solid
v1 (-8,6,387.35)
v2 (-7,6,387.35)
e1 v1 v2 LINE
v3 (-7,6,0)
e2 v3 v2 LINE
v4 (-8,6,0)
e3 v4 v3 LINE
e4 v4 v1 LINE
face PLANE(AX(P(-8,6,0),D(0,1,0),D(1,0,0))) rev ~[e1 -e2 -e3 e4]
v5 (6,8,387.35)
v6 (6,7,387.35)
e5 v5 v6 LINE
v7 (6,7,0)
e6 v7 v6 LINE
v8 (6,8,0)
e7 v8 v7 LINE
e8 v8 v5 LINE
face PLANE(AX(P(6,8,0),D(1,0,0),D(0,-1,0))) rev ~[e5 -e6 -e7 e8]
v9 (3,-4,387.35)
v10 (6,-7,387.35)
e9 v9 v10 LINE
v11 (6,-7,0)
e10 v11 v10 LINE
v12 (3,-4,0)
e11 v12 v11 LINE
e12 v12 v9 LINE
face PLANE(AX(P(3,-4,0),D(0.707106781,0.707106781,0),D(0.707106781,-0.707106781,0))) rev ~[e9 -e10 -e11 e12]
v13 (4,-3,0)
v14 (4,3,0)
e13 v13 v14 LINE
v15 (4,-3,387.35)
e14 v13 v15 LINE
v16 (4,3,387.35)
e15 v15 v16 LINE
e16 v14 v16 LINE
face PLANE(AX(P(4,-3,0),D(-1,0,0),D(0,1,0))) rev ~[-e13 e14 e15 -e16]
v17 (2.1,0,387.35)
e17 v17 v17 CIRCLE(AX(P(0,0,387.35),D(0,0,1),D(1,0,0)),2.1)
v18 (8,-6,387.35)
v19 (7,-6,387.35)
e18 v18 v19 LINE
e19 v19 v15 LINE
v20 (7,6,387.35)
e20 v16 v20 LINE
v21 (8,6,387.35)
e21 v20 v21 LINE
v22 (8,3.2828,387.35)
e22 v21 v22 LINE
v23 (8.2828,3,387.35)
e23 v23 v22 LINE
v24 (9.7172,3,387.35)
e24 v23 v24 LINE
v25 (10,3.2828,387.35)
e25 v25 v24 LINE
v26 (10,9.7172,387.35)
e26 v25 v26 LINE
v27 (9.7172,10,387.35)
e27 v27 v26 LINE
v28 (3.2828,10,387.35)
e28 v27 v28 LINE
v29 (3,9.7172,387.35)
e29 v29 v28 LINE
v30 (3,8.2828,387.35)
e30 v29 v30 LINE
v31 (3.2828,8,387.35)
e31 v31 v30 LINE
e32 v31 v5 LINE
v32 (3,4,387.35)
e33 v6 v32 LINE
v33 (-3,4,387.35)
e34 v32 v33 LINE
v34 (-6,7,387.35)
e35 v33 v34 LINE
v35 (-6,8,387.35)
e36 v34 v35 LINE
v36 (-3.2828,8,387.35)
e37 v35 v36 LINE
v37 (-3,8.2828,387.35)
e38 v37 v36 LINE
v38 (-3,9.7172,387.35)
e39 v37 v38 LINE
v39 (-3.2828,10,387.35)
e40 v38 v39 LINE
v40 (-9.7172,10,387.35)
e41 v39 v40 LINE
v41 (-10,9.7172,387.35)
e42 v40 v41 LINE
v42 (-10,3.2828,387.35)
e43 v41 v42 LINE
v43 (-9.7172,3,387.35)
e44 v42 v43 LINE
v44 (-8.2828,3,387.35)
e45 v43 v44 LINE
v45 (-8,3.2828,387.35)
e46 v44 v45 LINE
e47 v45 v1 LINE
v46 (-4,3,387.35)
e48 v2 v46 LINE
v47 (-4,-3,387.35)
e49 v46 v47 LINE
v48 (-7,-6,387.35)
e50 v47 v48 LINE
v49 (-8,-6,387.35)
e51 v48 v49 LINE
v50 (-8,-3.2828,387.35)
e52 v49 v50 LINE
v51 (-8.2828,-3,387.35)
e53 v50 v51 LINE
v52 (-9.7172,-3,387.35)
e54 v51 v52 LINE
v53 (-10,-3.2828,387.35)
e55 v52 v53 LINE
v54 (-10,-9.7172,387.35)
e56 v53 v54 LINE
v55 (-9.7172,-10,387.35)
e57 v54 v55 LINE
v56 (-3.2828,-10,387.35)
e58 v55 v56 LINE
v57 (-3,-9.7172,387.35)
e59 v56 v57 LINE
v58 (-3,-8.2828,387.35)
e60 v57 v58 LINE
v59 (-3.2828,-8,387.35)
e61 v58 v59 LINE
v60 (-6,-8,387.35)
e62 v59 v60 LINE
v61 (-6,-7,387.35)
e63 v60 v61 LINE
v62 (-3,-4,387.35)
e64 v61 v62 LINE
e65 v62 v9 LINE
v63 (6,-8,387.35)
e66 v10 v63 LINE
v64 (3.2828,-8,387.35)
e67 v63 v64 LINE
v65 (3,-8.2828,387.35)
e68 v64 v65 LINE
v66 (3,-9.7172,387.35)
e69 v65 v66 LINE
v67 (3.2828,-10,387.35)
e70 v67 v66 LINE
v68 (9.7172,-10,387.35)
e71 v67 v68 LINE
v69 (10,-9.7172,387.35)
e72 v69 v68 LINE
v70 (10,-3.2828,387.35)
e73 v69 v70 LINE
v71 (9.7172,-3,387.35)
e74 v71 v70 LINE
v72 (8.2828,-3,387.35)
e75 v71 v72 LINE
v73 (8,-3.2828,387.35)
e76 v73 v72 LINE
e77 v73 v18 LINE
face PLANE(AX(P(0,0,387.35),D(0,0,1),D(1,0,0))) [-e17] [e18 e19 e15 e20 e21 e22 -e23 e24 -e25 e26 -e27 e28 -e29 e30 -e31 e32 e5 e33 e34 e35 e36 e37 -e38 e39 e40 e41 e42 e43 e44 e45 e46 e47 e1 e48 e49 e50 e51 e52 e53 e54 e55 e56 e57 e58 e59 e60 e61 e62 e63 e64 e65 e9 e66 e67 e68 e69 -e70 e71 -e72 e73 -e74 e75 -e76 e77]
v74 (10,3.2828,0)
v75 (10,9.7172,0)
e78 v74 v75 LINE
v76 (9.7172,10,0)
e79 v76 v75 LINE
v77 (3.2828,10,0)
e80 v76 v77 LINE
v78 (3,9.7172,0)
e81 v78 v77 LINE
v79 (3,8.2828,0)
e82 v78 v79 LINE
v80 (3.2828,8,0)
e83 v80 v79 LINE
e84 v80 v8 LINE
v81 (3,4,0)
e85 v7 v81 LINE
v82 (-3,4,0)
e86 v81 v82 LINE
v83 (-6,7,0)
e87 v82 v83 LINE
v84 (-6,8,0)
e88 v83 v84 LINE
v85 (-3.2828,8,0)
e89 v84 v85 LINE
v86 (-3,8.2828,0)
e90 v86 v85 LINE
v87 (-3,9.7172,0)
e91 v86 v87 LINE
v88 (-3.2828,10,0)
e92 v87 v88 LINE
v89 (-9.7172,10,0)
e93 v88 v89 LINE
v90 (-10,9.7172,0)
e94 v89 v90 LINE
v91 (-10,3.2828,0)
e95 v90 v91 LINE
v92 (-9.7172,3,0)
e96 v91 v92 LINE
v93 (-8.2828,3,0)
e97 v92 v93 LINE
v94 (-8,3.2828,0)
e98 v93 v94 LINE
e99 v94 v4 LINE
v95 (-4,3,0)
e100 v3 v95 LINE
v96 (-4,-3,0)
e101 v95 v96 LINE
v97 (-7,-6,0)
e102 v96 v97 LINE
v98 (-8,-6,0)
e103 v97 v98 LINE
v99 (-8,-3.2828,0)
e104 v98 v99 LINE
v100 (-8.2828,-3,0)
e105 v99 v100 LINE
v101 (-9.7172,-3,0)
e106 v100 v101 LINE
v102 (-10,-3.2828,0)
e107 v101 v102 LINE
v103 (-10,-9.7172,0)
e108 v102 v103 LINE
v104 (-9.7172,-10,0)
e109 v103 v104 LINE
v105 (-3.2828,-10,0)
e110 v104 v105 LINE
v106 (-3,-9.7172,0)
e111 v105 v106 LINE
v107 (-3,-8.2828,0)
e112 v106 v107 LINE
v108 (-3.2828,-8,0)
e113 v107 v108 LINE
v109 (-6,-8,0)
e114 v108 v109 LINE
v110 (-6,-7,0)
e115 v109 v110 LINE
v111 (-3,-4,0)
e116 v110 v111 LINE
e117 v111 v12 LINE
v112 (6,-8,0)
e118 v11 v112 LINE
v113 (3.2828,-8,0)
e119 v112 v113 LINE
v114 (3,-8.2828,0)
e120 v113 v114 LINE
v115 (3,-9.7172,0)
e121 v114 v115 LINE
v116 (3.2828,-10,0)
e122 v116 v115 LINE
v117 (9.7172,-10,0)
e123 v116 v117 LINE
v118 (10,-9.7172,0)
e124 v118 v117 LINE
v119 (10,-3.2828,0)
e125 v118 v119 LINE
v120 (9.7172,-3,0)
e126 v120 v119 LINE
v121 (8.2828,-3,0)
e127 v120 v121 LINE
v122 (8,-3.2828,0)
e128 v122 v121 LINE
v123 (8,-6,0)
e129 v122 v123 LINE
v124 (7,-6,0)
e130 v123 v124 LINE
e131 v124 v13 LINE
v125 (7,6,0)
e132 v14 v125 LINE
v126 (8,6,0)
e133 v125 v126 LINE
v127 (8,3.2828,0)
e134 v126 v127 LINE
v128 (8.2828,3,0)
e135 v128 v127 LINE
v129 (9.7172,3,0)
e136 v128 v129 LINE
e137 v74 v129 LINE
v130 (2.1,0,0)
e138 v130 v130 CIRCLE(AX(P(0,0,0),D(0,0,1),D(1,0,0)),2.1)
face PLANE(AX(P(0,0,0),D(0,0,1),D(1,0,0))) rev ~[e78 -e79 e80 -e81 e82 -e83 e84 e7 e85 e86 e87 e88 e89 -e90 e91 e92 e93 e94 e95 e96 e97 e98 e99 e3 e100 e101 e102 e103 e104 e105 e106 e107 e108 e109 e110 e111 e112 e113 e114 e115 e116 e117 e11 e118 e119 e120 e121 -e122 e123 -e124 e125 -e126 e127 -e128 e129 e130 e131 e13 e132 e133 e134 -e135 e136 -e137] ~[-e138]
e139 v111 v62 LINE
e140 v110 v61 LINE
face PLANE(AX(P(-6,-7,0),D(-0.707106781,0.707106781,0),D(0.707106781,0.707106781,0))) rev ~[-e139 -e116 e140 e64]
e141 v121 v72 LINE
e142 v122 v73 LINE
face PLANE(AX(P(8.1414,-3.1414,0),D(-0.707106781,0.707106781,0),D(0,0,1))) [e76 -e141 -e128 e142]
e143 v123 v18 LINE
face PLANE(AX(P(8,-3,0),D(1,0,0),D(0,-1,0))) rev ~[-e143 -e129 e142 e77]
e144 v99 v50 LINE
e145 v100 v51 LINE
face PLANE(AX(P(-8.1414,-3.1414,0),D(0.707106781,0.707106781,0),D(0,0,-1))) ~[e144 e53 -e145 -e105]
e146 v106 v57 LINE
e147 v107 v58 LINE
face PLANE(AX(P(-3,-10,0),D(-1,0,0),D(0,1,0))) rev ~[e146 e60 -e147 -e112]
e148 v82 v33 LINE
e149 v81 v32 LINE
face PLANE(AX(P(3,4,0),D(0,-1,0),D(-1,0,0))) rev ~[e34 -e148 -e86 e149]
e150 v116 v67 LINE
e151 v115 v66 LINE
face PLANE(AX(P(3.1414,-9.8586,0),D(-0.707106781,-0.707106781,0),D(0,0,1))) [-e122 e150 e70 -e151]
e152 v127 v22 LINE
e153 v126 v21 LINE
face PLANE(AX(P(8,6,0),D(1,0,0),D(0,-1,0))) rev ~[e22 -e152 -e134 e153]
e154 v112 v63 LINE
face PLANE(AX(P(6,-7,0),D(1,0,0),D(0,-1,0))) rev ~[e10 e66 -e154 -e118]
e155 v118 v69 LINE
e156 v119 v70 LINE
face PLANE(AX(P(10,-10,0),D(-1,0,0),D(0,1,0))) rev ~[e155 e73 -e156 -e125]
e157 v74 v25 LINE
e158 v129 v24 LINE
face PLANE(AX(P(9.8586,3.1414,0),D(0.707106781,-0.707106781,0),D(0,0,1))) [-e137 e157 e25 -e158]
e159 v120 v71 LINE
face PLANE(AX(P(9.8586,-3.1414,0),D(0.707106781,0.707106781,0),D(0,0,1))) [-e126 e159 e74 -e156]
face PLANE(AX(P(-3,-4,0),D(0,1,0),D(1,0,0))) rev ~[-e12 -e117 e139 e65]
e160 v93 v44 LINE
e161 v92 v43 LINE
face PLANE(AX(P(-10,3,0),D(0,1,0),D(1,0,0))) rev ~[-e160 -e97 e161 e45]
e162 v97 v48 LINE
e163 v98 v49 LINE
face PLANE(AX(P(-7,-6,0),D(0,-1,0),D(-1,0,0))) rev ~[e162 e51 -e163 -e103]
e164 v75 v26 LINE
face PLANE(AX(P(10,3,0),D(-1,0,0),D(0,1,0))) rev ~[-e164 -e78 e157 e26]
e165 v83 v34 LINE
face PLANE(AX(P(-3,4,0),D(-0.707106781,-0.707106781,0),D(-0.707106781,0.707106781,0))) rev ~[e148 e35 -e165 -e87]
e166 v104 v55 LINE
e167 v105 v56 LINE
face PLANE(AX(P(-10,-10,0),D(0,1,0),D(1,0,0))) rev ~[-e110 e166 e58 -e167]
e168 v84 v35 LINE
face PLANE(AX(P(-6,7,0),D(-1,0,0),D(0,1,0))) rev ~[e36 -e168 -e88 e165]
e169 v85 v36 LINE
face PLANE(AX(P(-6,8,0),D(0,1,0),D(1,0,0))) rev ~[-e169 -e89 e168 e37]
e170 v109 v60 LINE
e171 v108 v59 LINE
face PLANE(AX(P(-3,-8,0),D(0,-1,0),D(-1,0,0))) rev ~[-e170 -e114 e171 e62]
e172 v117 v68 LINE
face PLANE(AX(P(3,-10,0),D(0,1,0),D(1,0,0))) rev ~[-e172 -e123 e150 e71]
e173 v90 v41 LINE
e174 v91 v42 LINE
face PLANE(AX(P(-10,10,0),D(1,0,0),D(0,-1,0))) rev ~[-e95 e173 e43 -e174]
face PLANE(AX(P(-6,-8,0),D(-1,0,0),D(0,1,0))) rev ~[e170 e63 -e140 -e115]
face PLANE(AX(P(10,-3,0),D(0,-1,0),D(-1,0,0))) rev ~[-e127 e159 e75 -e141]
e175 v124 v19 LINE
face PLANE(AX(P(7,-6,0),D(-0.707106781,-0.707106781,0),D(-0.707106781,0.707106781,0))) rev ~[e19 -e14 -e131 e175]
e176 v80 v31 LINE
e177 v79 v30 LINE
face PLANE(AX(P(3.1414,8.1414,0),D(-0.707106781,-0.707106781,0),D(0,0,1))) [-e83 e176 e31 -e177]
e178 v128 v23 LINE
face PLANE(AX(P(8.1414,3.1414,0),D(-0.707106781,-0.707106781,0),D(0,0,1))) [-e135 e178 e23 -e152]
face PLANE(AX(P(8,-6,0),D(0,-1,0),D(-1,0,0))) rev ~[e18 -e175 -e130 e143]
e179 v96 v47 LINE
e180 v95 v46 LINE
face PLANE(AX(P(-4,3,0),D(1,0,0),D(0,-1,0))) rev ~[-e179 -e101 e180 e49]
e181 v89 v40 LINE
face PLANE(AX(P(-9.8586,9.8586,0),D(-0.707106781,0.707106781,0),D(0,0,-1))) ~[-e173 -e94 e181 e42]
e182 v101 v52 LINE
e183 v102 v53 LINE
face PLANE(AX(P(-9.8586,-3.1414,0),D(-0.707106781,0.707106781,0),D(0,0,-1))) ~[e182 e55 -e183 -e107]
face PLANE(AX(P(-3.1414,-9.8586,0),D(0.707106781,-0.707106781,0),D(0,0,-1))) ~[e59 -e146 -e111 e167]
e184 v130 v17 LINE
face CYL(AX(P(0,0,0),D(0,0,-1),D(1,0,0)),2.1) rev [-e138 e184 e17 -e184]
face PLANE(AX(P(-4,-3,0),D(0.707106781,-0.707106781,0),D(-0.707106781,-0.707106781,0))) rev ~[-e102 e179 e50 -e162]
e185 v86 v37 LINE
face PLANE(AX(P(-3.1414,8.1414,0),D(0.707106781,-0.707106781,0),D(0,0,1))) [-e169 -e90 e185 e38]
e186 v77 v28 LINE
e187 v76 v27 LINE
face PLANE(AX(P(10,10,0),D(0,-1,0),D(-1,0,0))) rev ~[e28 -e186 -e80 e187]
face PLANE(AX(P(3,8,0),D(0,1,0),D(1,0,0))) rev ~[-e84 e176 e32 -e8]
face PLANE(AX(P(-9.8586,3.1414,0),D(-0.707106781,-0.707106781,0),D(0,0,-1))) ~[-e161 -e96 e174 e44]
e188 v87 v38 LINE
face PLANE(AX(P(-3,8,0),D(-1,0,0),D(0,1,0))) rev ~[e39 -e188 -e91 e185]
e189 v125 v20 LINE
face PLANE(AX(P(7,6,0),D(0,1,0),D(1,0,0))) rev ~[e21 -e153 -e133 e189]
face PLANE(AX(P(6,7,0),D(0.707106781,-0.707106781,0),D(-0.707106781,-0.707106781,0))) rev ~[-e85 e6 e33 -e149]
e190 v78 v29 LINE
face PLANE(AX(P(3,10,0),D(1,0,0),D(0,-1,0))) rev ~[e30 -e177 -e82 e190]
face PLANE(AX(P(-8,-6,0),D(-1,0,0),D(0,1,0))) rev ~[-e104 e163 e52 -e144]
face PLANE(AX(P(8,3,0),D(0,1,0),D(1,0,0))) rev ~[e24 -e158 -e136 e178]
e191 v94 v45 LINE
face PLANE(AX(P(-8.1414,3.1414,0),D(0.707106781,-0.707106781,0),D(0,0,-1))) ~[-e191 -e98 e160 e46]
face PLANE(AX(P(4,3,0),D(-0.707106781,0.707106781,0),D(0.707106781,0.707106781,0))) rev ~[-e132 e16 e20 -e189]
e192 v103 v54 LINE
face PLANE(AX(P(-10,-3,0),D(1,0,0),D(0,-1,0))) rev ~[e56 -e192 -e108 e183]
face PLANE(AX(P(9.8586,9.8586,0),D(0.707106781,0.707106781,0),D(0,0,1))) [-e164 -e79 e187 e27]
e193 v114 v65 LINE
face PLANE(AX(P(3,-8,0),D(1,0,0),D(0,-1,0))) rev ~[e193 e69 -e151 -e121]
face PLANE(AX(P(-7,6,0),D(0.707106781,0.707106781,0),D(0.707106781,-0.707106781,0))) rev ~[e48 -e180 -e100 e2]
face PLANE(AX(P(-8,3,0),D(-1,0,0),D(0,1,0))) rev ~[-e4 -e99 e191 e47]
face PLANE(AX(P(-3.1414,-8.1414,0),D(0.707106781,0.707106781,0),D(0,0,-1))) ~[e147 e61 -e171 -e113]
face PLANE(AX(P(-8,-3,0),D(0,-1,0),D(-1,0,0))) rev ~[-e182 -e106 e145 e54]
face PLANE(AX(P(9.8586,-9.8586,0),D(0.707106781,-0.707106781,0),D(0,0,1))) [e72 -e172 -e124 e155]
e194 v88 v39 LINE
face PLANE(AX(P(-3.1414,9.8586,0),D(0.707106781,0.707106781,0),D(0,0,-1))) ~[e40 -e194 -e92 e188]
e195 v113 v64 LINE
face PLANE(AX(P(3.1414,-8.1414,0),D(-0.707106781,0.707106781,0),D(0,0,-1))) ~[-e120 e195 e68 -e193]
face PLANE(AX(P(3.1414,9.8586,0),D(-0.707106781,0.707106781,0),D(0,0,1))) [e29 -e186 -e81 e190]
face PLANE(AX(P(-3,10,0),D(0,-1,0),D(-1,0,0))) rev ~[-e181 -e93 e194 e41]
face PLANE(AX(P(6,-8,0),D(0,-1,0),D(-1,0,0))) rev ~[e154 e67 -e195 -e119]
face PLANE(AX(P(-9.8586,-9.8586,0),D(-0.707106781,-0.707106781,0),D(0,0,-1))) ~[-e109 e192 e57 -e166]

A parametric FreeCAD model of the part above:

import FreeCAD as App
import Part
import Sketcher

V = App.Vector


def edges_at(feature, points):
    """Names of the edges that pass closest to the given points."""
    edges = feature.Shape.Edges
    near = lambda p: min(range(len(edges)), key=lambda i: edges[i].distToShape(Part.Vertex(*p))[0])
    return sorted({f"Edge{near(p) + 1}" for p in points})


def add_polygon(sketch, points):
    """Adds a closed chain of lines whose ends are joined by coincident constraints."""
    first, n = sketch.GeometryCount, len(points)
    for a, b in zip(points, points[1:] + points[:1]):
        sketch.addGeometry(Part.LineSegment(App.Vector(*a, 0), App.Vector(*b, 0)), False)
    for i in range(n):
        sketch.addConstraint(Sketcher.Constraint("Coincident", first + i, 2, first + (i + 1) % n, 1))

doc = App.newDocument("Part")
body = doc.addObject("PartDesign::Body", "Body")

sketch1 = body.newObject("Sketcher::SketchObject", "Sketch")
sketch1.AttachmentSupport = (doc.getObject("XY_Plane"), [""])
sketch1.MapMode = "FlatFace"
add_polygon(sketch1, [(-3, 8), (-3, 10), (-10, 10), (-10, 3), (-8, 3), (-8, 6), (-7, 6), (-4, 3), (-4, -3), (-7, -6), (-8, -6), (-8, -3), (-10, -3), (-10, -10), (-3, -10), (-3, -8), (-6, -8), (-6, -7), (-3, -4), (3, -4), (6, -7), (6, -8), (3, -8), (3, -10), (10, -10), (10, -3), (8, -3), (8, -6), (7, -6), (4, -3), (4, 3), (7, 6), (8, 6), (8, 3), (10, 3), (10, 10), (3, 10), (3, 8), (6, 8), (6, 7), (3, 4), (-3, 4), (-6, 7), (-6, 8)])
sketch1.addGeometry(Part.Circle(V(0, 0, 0), V(0, 0, 1), 2.1), False)
sketch1.addConstraint([
    Sketcher.Constraint("Vertical", 0),
    Sketcher.Constraint("Horizontal", 1),
    Sketcher.Constraint("Vertical", 2),
    Sketcher.Constraint("Horizontal", 3),
    Sketcher.Constraint("Vertical", 4),
    Sketcher.Constraint("Horizontal", 5),
    Sketcher.Constraint("Vertical", 7),
    Sketcher.Constraint("Horizontal", 9),
    Sketcher.Constraint("Vertical", 10),
    Sketcher.Constraint("Horizontal", 11),
    Sketcher.Constraint("Vertical", 12),
    Sketcher.Constraint("Horizontal", 13),
    Sketcher.Constraint("Vertical", 14),
    Sketcher.Constraint("Horizontal", 15),
    Sketcher.Constraint("Vertical", 16),
    Sketcher.Constraint("Horizontal", 18),
    Sketcher.Constraint("Vertical", 20),
    Sketcher.Constraint("Horizontal", 21),
    Sketcher.Constraint("Vertical", 22),
    Sketcher.Constraint("Horizontal", 23),
    Sketcher.Constraint("Vertical", 24),
    Sketcher.Constraint("Horizontal", 25),
    Sketcher.Constraint("Vertical", 26),
    Sketcher.Constraint("Horizontal", 27),
    Sketcher.Constraint("Vertical", 29),
    Sketcher.Constraint("Horizontal", 31),
    Sketcher.Constraint("Vertical", 32),
    Sketcher.Constraint("Horizontal", 33),
    Sketcher.Constraint("Vertical", 34),
    Sketcher.Constraint("Horizontal", 35),
    Sketcher.Constraint("Vertical", 36),
    Sketcher.Constraint("Horizontal", 37),
    Sketcher.Constraint("Vertical", 38),
    Sketcher.Constraint("Horizontal", 40),
    Sketcher.Constraint("Vertical", 42),
    Sketcher.Constraint("Horizontal", 43),
    Sketcher.Constraint("Coincident", 44, 3, -1, 1),
    Sketcher.Constraint("Symmetric", 0, 2, 22, 2, -1, 1),
    Sketcher.Constraint("Symmetric", 2, 2, 24, 2, -1, 1),
    Sketcher.Constraint("Symmetric", 4, 2, 26, 2, -1, 1),
    Sketcher.Constraint("Symmetric", 6, 2, 28, 2, -1, 1),
    Sketcher.Constraint("Symmetric", 8, 2, 30, 2, -1, 1),
    Sketcher.Constraint("Symmetric", 10, 2, 32, 2, -1, 1),
    Sketcher.Constraint("Symmetric", 12, 2, 34, 2, -1, 1),
    Sketcher.Constraint("Symmetric", 14, 2, 36, 2, -1, 1),
    Sketcher.Constraint("Symmetric", 16, 2, 38, 2, -1, 1),
    Sketcher.Constraint("Symmetric", 17, 2, 39, 2, -1, 1),
    Sketcher.Constraint("Symmetric", 19, 2, 41, 2, -1, 1),
    Sketcher.Constraint("Symmetric", 16, 2, 19, 2, -2),
    Sketcher.Constraint("Symmetric", 14, 2, 21, 2, -2),
    Sketcher.Constraint("Symmetric", 12, 2, 23, 2, -2),
    Sketcher.Constraint("Symmetric", 10, 2, 25, 2, -2),
    Sketcher.Constraint("Symmetric", 8, 2, 27, 2, -2),
    Sketcher.Constraint("Perpendicular", 6, 8),
    Sketcher.Constraint("Parallel", 8, 17),
    Sketcher.Constraint("Perpendicular", 17, 19),
    Sketcher.Constraint("Parallel", 19, 28),
    Sketcher.Constraint("Perpendicular", 28, 30),
    Sketcher.Constraint("Perpendicular", 39, 41),
    Sketcher.Constraint("Horizontal", 3, 2, 6, 2),
    Sketcher.Constraint("Horizontal", 7, 2, 10, 2),
    Sketcher.Constraint("Horizontal", 37, 2, 42, 2),
    Sketcher.Constraint("Vertical", 14, 2, 17, 2),
    Sketcher.Constraint("Equal", 33, 0),
    Sketcher.Constraint("Equal", 35, 2),
    Sketcher.Constraint("Equal", 43, 4),
    Sketcher.Constraint("Equal", 40, 7),
    Sketcher.Constraint("Equal", 31, 16),
    Sketcher.Constraint("Diameter", 44, 4.2),
    Sketcher.Constraint("DistanceX", 1, 2, 1, 1, 7.0),
    Sketcher.Constraint("DistanceX", 3, 1, 3, 2, 2.0),
    Sketcher.Constraint("DistanceX", 5, 1, 5, 2, 1.0),
    Sketcher.Constraint("DistanceX", 15, 2, 15, 1, 3.0),
    Sketcher.Constraint("DistanceX", 18, 1, 18, 2, 6.0),
])
pad1 = body.newObject("PartDesign::Pad", "Pad")
pad1.Profile = sketch1
pad1.Length = 387.35
doc.recompute()

chamfer = body.newObject("PartDesign::Chamfer", "Chamfer")
chamfer.Base = (pad1, edges_at(pad1, [
    (-8, -3, 193.675),
    (-8, 3, 193.675),
    (-10, 3, 193.675),
    (-10, 10, 193.675),
    (-3, 10, 193.675),
    (-3, 8, 193.675),
    (3, 8, 193.675),
    (3, 10, 193.675),
    (10, 10, 193.675),
    (10, 3, 193.675),
    (8, 3, 193.675),
    (8, -3, 193.675),
    (10, -3, 193.675),
    (10, -10, 193.675),
    (3, -10, 193.675),
    (3, -8, 193.675),
    (-3, -8, 193.675),
    (-3, -10, 193.675),
    (-10, -10, 193.675),
    (-10, -3, 193.675),
]))
chamfer.Size = 0.2828

doc.recompute()
